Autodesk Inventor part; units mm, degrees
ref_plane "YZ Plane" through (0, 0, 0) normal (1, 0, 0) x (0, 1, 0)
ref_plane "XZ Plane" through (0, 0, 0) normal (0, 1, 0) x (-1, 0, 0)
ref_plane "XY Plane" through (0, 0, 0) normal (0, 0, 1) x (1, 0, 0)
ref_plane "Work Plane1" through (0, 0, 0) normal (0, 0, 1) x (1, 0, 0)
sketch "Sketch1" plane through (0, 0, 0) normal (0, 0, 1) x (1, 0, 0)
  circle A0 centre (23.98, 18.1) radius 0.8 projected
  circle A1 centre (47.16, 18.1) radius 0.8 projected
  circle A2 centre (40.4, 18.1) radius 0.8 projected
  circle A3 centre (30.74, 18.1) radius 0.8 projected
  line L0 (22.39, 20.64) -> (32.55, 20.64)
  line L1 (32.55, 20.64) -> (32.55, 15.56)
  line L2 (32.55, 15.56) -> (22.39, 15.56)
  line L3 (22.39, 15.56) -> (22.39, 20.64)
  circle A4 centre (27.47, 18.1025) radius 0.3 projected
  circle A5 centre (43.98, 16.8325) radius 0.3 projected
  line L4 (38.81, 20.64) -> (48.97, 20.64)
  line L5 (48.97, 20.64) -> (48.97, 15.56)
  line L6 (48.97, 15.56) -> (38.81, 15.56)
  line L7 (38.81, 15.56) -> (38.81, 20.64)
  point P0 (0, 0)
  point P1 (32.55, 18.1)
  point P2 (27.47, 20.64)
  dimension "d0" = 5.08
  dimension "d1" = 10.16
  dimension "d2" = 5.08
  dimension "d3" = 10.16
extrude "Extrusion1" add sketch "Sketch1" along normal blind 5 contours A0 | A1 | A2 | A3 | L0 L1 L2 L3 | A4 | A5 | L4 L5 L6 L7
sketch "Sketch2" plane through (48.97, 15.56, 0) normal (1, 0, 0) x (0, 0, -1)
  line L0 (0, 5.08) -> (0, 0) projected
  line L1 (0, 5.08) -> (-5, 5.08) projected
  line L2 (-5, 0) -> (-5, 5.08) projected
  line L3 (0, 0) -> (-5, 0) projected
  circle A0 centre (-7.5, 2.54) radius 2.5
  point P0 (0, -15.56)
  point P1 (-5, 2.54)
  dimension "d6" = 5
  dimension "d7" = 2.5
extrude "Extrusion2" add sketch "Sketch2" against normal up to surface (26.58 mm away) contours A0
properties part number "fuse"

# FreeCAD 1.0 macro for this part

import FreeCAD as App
import Part
import Sketcher
from FreeCAD import Vector
Q = App.Units.Quantity

doc = App.newDocument("Part")
body = doc.addObject("PartDesign::Body", "Body")
body.AllowCompound = True

sketch1 = body.newObject("Sketcher::SketchObject", "Sketch")
sketch1.AttachmentSupport = (doc.getObject("XY_Plane"), [""])
sketch1.MapMode = "FlatFace"
sketch1.addGeometry(Part.LineSegment(Vector(33, 21, 0), Vector(22, 21, 0)), False)
sketch1.addGeometry(Part.LineSegment(Vector(22, 21, 0), Vector(22, 16, 0)), False)
sketch1.addGeometry(Part.LineSegment(Vector(22, 16, 0), Vector(33, 16, 0)), False)
sketch1.addGeometry(Part.LineSegment(Vector(33, 16, 0), Vector(33, 21, 0)), False)
sketch1.addGeometry(Part.LineSegment(Vector(49, 21, 0), Vector(39, 21, 0)), False)
sketch1.addGeometry(Part.LineSegment(Vector(39, 21, 0), Vector(39, 16, 0)), False)
sketch1.addGeometry(Part.LineSegment(Vector(39, 16, 0), Vector(49, 16, 0)), False)
sketch1.addGeometry(Part.LineSegment(Vector(49, 16, 0), Vector(49, 21, 0)), False)
sketch1.addConstraint(Sketcher.Constraint("Coincident", 0, 2, 1, 1))
sketch1.addConstraint(Sketcher.Constraint("Coincident", 1, 2, 2, 1))
sketch1.addConstraint(Sketcher.Constraint("Coincident", 2, 2, 3, 1))
sketch1.addConstraint(Sketcher.Constraint("Coincident", 3, 2, 0, 1))
sketch1.addConstraint(Sketcher.Constraint("Coincident", 4, 2, 5, 1))
sketch1.addConstraint(Sketcher.Constraint("Coincident", 5, 2, 6, 1))
sketch1.addConstraint(Sketcher.Constraint("Coincident", 6, 2, 7, 1))
sketch1.addConstraint(Sketcher.Constraint("Coincident", 7, 2, 4, 1))
sketch1.addConstraint(Sketcher.Constraint("Horizontal", 0))
sketch1.addConstraint(Sketcher.Constraint("Vertical", 1))
sketch1.addConstraint(Sketcher.Constraint("Horizontal", 2))
sketch1.addConstraint(Sketcher.Constraint("Vertical", 3))
sketch1.addConstraint(Sketcher.Constraint("Horizontal", 4))
sketch1.addConstraint(Sketcher.Constraint("Vertical", 5))
sketch1.addConstraint(Sketcher.Constraint("Horizontal", 6))
sketch1.addConstraint(Sketcher.Constraint("Vertical", 7))
sketch1.addConstraint(Sketcher.Constraint("Horizontal", 3, 2, 4, 2))
sketch1.addConstraint(Sketcher.Constraint("Horizontal", 2, 2, 5, 2))
sketch1.addConstraint(Sketcher.Constraint("Equal", 2, 4))
sketch1.addConstraint(Sketcher.Constraint("DistanceX", 0, 2, 0, 1, Q("0.4 in")))
sketch1.addConstraint(Sketcher.Constraint("DistanceY", 1, 2, 1, 1, Q("0.2 in")))
sketch1.addConstraint(Sketcher.Constraint("DistanceX", -1, 1, 0, 2, Q("0.8815 in")))
sketch1.addConstraint(Sketcher.Constraint("DistanceY", -1, 1, 0, 2, Q("0.8126 in")))
sketch1.addConstraint(Sketcher.Constraint("DistanceX", -1, 1, 4, 2, Q("38.81 mm")))
pad1 = body.newObject("PartDesign::Pad", "Pad")
pad1.Profile = sketch1
pad1.Length = 5

sketch2 = body.newObject("Sketcher::SketchObject", "Sketch001")
sketch2.AttachmentSupport = (doc.getObject("YZ_Plane"), [""])
sketch2.MapMode = "FlatFace"
sketch2.AttachmentOffset = App.Placement(Vector(0, 0, 48.97), App.Rotation())
sketch2.addGeometry(Part.Circle(Vector(18.1, 7.5, 0), Vector(0, 0, 1), 2.5), False)
sketch2.addConstraint(Sketcher.Constraint("Diameter", 0, Q("5 mm")))
sketch2.addConstraint(Sketcher.Constraint("DistanceX", -1, 1, 0, 3, Q("0.7126 in")))
sketch2.addConstraint(Sketcher.Constraint("DistanceY", -1, 1, 0, 3, Q("7.5 mm")))
pad2 = body.newObject("PartDesign::Pad", "Pad001")
pad2.Profile = sketch2
pad2.Length = 26.58
pad2.Reversed = True

doc.recompute()
